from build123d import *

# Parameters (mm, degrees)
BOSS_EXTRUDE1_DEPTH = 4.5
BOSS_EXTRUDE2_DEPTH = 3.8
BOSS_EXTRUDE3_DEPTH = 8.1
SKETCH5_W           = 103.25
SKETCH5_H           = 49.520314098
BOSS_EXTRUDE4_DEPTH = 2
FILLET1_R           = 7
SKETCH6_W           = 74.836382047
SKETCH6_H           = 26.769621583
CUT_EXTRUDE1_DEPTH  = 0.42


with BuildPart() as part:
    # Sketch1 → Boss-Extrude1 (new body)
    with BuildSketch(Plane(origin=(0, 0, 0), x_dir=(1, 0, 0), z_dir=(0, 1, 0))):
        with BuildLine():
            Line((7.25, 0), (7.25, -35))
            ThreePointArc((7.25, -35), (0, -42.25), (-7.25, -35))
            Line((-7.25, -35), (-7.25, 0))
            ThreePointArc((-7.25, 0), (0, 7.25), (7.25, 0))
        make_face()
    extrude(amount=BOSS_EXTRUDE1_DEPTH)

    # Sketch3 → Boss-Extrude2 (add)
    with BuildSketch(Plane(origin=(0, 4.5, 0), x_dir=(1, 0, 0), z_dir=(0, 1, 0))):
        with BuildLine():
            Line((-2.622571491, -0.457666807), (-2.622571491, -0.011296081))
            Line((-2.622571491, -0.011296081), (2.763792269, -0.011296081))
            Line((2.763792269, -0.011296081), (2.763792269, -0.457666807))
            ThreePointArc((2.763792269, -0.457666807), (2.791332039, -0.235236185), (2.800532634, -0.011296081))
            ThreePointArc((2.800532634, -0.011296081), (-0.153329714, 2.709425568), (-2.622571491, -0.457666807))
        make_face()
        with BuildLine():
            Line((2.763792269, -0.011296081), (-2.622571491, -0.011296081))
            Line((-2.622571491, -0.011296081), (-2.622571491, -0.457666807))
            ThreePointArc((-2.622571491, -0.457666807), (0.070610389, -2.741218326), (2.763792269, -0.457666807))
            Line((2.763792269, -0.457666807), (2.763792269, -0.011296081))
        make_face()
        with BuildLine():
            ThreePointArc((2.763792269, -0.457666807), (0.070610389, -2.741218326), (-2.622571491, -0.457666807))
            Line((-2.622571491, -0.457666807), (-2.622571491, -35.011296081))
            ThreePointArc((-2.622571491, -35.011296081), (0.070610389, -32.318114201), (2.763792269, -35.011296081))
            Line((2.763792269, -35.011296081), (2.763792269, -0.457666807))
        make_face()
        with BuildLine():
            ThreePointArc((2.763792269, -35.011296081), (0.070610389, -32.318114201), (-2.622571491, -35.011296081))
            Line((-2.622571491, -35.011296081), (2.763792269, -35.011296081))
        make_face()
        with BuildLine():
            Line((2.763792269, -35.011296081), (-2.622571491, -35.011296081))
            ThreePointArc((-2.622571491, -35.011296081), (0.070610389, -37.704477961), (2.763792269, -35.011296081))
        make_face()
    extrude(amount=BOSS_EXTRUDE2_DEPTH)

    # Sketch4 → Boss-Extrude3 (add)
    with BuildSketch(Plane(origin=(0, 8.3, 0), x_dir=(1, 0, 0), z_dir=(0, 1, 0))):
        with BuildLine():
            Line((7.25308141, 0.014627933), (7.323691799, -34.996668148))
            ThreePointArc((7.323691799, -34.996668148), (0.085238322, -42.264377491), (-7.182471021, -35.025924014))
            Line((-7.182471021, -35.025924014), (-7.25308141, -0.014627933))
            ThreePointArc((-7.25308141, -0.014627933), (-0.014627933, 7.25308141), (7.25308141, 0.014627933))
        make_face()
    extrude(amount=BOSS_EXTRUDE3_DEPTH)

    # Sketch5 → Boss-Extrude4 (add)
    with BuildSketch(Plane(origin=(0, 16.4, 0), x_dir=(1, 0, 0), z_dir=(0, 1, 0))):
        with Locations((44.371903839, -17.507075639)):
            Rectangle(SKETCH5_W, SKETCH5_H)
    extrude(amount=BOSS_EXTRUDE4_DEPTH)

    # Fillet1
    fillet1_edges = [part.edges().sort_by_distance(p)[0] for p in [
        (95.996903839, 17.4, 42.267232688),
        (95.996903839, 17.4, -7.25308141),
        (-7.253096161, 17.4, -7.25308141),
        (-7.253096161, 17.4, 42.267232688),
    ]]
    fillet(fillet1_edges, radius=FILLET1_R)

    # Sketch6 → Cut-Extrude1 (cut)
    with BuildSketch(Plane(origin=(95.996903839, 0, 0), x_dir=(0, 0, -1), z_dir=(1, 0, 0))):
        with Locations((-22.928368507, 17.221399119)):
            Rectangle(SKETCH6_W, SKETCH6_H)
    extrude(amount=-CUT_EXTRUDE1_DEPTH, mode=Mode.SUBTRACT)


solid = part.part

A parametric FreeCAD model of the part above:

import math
import FreeCAD as App
import Part
import Sketcher
Q = App.Units.Quantity


def edges_at(feature, points):
    """Names of the edges that pass closest to the given points."""
    edges = feature.Shape.Edges
    near = lambda p: min(range(len(edges)), key=lambda i: edges[i].distToShape(Part.Vertex(*p))[0])
    return sorted({f"Edge{near(p) + 1}" for p in points})

doc = App.newDocument("Part")
body = doc.addObject("PartDesign::Body", "Body")

# Sketch on XZ plane
sketch1 = body.newObject("Sketcher::SketchObject", "Sketch")
sketch1.AttachmentSupport = (doc.getObject("XZ_Plane"), [""])
sketch1.MapMode = "FlatFace"
sketch1.addGeometry(Part.LineSegment(App.Vector(7.25, 35, 0), App.Vector(7.25, 0, 0)), False)
sketch1.addGeometry(Part.ArcOfCircle(Part.Circle(App.Vector(0, 0, 0), App.Vector(0, 0, 1), 7.25), math.radians(180), math.radians(360)), False)
sketch1.addGeometry(Part.LineSegment(App.Vector(-7.25, 0, 0), App.Vector(-7.25, 35, 0)), False)
sketch1.addGeometry(Part.ArcOfCircle(Part.Circle(App.Vector(0, 35, 0), App.Vector(0, 0, 1), 7.25), math.radians(0), math.radians(180)), False)
sketch1.addConstraint(Sketcher.Constraint("Tangent", 0, 2, 1, 2))
sketch1.addConstraint(Sketcher.Constraint("Tangent", 1, 1, 2, 1))
sketch1.addConstraint(Sketcher.Constraint("Tangent", 2, 2, 3, 2))
sketch1.addConstraint(Sketcher.Constraint("Tangent", 3, 1, 0, 1))
sketch1.addConstraint(Sketcher.Constraint("Vertical", 0))
sketch1.addConstraint(Sketcher.Constraint("Vertical", 2))
sketch1.addConstraint(Sketcher.Constraint("Coincident", 1, 3, -1, 1))
sketch1.addConstraint(Sketcher.Constraint("DistanceY", 0, 2, 0, 1, Q("35 mm")))
sketch1.addConstraint(Sketcher.Constraint("Radius", 1, Q("7.25 mm")))
pad1 = body.newObject("PartDesign::Pad", "Pad")
pad1.Profile = sketch1
pad1.Length = 4.5
pad1.Reversed = True

# Sketch on XZ plane
sketch2 = body.newObject("Sketcher::SketchObject", "Sketch001")
sketch2.AttachmentSupport = (doc.getObject("XZ_Plane"), [""])
sketch2.MapMode = "FlatFace"
sketch2.AttachmentOffset = App.Placement(App.Vector(0, 0, -4.5), App.Rotation())
sketch2.addGeometry(Part.ArcOfCircle(Part.Circle(App.Vector(0.07061, 35.011296, 0), App.Vector(0, 0, 1), 2.693182), math.radians(0), math.radians(180)), False)
sketch2.addGeometry(Part.LineSegment(App.Vector(2.763792, 35.011296, 0), App.Vector(2.763792, 0.457667, 0)), False)
sketch2.addGeometry(Part.ArcOfCircle(Part.Circle(App.Vector(0.070611, 0.011296, 0), App.Vector(0, 0, 1), 2.729922), math.radians(0), math.radians(9.410713)), False)
sketch2.addGeometry(Part.ArcOfCircle(Part.Circle(App.Vector(0.07061, 0.011296, 0), App.Vector(0, 0, 1), 2.729922), math.radians(170.589287), math.radians(360)), False)
sketch2.addGeometry(Part.LineSegment(App.Vector(-2.622571, 0.457667, 0), App.Vector(-2.622571, 35.011296, 0)), False)
sketch2.addConstraint(Sketcher.Constraint("Tangent", 0, 1, 1, 1))
sketch2.addConstraint(Sketcher.Constraint("Coincident", 1, 2, 2, 2))
sketch2.addConstraint(Sketcher.Constraint("Tangent", 2, 1, 3, 2))
sketch2.addConstraint(Sketcher.Constraint("Coincident", 3, 1, 4, 1))
sketch2.addConstraint(Sketcher.Constraint("Tangent", 4, 2, 0, 2))
sketch2.addConstraint(Sketcher.Constraint("Vertical", 1))
sketch2.addConstraint(Sketcher.Constraint("Vertical", 4))
sketch2.addConstraint(Sketcher.Constraint("Equal", 2, 3))
sketch2.addConstraint(Sketcher.Constraint("Horizontal", 3, 3, 2, 1))
sketch2.addConstraint(Sketcher.Constraint("Horizontal", 1, 2, 3, 1))
sketch2.addConstraint(Sketcher.Constraint("DistanceY", 2, 3, 0, 3, Q("35 mm")))
sketch2.addConstraint(Sketcher.Constraint("Radius", 0, Q("2.693182 mm")))
sketch2.addConstraint(Sketcher.Constraint("Radius", 2, Q("2.729922 mm")))
sketch2.addConstraint(Sketcher.Constraint("DistanceX", -1, 1, 0, 3, Q("0.07061 mm")))
sketch2.addConstraint(Sketcher.Constraint("DistanceY", -1, 1, 0, 3, Q("35.011296 mm")))
pad2 = body.newObject("PartDesign::Pad", "Pad001")
pad2.Profile = sketch2
pad2.Length = 3.8
pad2.Reversed = True

# Sketch on XZ plane
sketch3 = body.newObject("Sketcher::SketchObject", "Sketch002")
sketch3.AttachmentSupport = (doc.getObject("XZ_Plane"), [""])
sketch3.MapMode = "FlatFace"
sketch3.AttachmentOffset = App.Placement(App.Vector(0, 0, -8.3), App.Rotation())
sketch3.addGeometry(Part.LineSegment(App.Vector(7.323692, 34.996668, 0), App.Vector(7.253081, -0.014628, 0)), False)
sketch3.addGeometry(Part.ArcOfCircle(Part.Circle(App.Vector(0, 0, 0), App.Vector(0, 0, 1), 7.253096), math.radians(179.884447), math.radians(359.884447)), False)
sketch3.addGeometry(Part.LineSegment(App.Vector(-7.253081, 0.014628, 0), App.Vector(-7.182471, 35.025924, 0)), False)
sketch3.addGeometry(Part.ArcOfCircle(Part.Circle(App.Vector(0.07061, 35.011296, 0), App.Vector(0, 0, 1), 7.253096), math.radians(-0.115553), math.radians(179.884447)), False)
sketch3.addConstraint(Sketcher.Constraint("Tangent", 0, 2, 1, 2))
sketch3.addConstraint(Sketcher.Constraint("Tangent", 1, 1, 2, 1))
sketch3.addConstraint(Sketcher.Constraint("Tangent", 2, 2, 3, 2))
sketch3.addConstraint(Sketcher.Constraint("Tangent", 3, 1, 0, 1))
sketch3.addConstraint(Sketcher.Constraint("Coincident", 1, 3, -1, 1))
sketch3.addConstraint(Sketcher.Constraint("Equal", 1, 3))
sketch3.addConstraint(Sketcher.Constraint("Radius", 1, Q("7.253096 mm")))
sketch3.addConstraint(Sketcher.Constraint("DistanceX", -1, 1, 3, 3, Q("0.07061 mm")))
sketch3.addConstraint(Sketcher.Constraint("DistanceY", -1, 1, 3, 1, Q("34.996668 mm")))
pad3 = body.newObject("PartDesign::Pad", "Pad002")
pad3.Profile = sketch3
pad3.Length = 8.1
pad3.Reversed = True

# Sketch on XZ plane
sketch4 = body.newObject("Sketcher::SketchObject", "Sketch003")
sketch4.AttachmentSupport = (doc.getObject("XZ_Plane"), [""])
sketch4.MapMode = "FlatFace"
sketch4.AttachmentOffset = App.Placement(App.Vector(0, 0, -16.4), App.Rotation())
sketch4.addGeometry(Part.LineSegment(App.Vector(-7.253096, -7.253081, 0), App.Vector(-7.253096, 42.267233, 0)), False)
sketch4.addGeometry(Part.LineSegment(App.Vector(-7.253096, 42.267233, 0), App.Vector(95.996904, 42.267233, 0)), False)
sketch4.addGeometry(Part.LineSegment(App.Vector(95.996904, 42.267233, 0), App.Vector(95.996904, -7.253081, 0)), False)
sketch4.addGeometry(Part.LineSegment(App.Vector(95.996904, -7.253081, 0), App.Vector(-7.253096, -7.253081, 0)), False)
sketch4.addConstraint(Sketcher.Constraint("Coincident", 0, 2, 1, 1))
sketch4.addConstraint(Sketcher.Constraint("Coincident", 1, 2, 2, 1))
sketch4.addConstraint(Sketcher.Constraint("Coincident", 2, 2, 3, 1))
sketch4.addConstraint(Sketcher.Constraint("Coincident", 3, 2, 0, 1))
sketch4.addConstraint(Sketcher.Constraint("Vertical", 0))
sketch4.addConstraint(Sketcher.Constraint("Horizontal", 1))
sketch4.addConstraint(Sketcher.Constraint("Vertical", 2))
sketch4.addConstraint(Sketcher.Constraint("Horizontal", 3))
sketch4.addConstraint(Sketcher.Constraint("DistanceX", 1, 1, 1, 2, Q("103.25 mm")))
sketch4.addConstraint(Sketcher.Constraint("DistanceY", 0, 1, 0, 2, Q("49.520314 mm")))
sketch4.addConstraint(Sketcher.Constraint("DistanceY", 2, 2, -1, 1, Q("7.253081 mm")))
sketch4.addConstraint(Sketcher.Constraint("DistanceX", 0, 2, -1, 1, Q("7.253096 mm")))
pad4 = body.newObject("PartDesign::Pad", "Pad003")
pad4.Profile = sketch4
pad4.Length = 2
pad4.Reversed = True
doc.recompute()

fillet = body.newObject("PartDesign::Fillet", "Fillet")
fillet.Base = (pad4, edges_at(pad4, [
    (95.997, 17.4, 42.267),
    (95.997, 17.4, -7.253),
    (-7.253, 17.4, -7.253),
    (-7.253, 17.4, 42.267),
]))
fillet.Radius = 7

# Sketch on YZ plane
sketch5 = body.newObject("Sketcher::SketchObject", "Sketch004")
sketch5.AttachmentSupport = (doc.getObject("YZ_Plane"), [""])
sketch5.MapMode = "FlatFace"
sketch5.AttachmentOffset = App.Placement(App.Vector(0, 0, 95.996904), App.Rotation())
sketch5.addGeometry(Part.LineSegment(App.Vector(30.60621, 60.34656, 0), App.Vector(3.836588, 60.34656, 0)), False)
sketch5.addGeometry(Part.LineSegment(App.Vector(3.836588, 60.34656, 0), App.Vector(3.836588, -14.489823, 0)), False)
sketch5.addGeometry(Part.LineSegment(App.Vector(3.836588, -14.489823, 0), App.Vector(30.60621, -14.489823, 0)), False)
sketch5.addGeometry(Part.LineSegment(App.Vector(30.60621, -14.489823, 0), App.Vector(30.60621, 60.34656, 0)), False)
sketch5.addConstraint(Sketcher.Constraint("Coincident", 0, 2, 1, 1))
sketch5.addConstraint(Sketcher.Constraint("Coincident", 1, 2, 2, 1))
sketch5.addConstraint(Sketcher.Constraint("Coincident", 2, 2, 3, 1))
sketch5.addConstraint(Sketcher.Constraint("Coincident", 3, 2, 0, 1))
sketch5.addConstraint(Sketcher.Constraint("Horizontal", 0))
sketch5.addConstraint(Sketcher.Constraint("Vertical", 1))
sketch5.addConstraint(Sketcher.Constraint("Horizontal", 2))
sketch5.addConstraint(Sketcher.Constraint("Vertical", 3))
sketch5.addConstraint(Sketcher.Constraint("DistanceX", 0, 2, 0, 1, Q("26.769622 mm")))
sketch5.addConstraint(Sketcher.Constraint("DistanceY", 1, 2, 1, 1, Q("74.836382 mm")))
sketch5.addConstraint(Sketcher.Constraint("DistanceX", -1, 1, 0, 2, Q("3.836588 mm")))
sketch5.addConstraint(Sketcher.Constraint("DistanceY", -1, 1, 0, 2, Q("60.34656 mm")))
pocket1 = body.newObject("PartDesign::Pocket", "Pocket")
pocket1.Profile = sketch5
pocket1.Length = 0.42

doc.recompute()
